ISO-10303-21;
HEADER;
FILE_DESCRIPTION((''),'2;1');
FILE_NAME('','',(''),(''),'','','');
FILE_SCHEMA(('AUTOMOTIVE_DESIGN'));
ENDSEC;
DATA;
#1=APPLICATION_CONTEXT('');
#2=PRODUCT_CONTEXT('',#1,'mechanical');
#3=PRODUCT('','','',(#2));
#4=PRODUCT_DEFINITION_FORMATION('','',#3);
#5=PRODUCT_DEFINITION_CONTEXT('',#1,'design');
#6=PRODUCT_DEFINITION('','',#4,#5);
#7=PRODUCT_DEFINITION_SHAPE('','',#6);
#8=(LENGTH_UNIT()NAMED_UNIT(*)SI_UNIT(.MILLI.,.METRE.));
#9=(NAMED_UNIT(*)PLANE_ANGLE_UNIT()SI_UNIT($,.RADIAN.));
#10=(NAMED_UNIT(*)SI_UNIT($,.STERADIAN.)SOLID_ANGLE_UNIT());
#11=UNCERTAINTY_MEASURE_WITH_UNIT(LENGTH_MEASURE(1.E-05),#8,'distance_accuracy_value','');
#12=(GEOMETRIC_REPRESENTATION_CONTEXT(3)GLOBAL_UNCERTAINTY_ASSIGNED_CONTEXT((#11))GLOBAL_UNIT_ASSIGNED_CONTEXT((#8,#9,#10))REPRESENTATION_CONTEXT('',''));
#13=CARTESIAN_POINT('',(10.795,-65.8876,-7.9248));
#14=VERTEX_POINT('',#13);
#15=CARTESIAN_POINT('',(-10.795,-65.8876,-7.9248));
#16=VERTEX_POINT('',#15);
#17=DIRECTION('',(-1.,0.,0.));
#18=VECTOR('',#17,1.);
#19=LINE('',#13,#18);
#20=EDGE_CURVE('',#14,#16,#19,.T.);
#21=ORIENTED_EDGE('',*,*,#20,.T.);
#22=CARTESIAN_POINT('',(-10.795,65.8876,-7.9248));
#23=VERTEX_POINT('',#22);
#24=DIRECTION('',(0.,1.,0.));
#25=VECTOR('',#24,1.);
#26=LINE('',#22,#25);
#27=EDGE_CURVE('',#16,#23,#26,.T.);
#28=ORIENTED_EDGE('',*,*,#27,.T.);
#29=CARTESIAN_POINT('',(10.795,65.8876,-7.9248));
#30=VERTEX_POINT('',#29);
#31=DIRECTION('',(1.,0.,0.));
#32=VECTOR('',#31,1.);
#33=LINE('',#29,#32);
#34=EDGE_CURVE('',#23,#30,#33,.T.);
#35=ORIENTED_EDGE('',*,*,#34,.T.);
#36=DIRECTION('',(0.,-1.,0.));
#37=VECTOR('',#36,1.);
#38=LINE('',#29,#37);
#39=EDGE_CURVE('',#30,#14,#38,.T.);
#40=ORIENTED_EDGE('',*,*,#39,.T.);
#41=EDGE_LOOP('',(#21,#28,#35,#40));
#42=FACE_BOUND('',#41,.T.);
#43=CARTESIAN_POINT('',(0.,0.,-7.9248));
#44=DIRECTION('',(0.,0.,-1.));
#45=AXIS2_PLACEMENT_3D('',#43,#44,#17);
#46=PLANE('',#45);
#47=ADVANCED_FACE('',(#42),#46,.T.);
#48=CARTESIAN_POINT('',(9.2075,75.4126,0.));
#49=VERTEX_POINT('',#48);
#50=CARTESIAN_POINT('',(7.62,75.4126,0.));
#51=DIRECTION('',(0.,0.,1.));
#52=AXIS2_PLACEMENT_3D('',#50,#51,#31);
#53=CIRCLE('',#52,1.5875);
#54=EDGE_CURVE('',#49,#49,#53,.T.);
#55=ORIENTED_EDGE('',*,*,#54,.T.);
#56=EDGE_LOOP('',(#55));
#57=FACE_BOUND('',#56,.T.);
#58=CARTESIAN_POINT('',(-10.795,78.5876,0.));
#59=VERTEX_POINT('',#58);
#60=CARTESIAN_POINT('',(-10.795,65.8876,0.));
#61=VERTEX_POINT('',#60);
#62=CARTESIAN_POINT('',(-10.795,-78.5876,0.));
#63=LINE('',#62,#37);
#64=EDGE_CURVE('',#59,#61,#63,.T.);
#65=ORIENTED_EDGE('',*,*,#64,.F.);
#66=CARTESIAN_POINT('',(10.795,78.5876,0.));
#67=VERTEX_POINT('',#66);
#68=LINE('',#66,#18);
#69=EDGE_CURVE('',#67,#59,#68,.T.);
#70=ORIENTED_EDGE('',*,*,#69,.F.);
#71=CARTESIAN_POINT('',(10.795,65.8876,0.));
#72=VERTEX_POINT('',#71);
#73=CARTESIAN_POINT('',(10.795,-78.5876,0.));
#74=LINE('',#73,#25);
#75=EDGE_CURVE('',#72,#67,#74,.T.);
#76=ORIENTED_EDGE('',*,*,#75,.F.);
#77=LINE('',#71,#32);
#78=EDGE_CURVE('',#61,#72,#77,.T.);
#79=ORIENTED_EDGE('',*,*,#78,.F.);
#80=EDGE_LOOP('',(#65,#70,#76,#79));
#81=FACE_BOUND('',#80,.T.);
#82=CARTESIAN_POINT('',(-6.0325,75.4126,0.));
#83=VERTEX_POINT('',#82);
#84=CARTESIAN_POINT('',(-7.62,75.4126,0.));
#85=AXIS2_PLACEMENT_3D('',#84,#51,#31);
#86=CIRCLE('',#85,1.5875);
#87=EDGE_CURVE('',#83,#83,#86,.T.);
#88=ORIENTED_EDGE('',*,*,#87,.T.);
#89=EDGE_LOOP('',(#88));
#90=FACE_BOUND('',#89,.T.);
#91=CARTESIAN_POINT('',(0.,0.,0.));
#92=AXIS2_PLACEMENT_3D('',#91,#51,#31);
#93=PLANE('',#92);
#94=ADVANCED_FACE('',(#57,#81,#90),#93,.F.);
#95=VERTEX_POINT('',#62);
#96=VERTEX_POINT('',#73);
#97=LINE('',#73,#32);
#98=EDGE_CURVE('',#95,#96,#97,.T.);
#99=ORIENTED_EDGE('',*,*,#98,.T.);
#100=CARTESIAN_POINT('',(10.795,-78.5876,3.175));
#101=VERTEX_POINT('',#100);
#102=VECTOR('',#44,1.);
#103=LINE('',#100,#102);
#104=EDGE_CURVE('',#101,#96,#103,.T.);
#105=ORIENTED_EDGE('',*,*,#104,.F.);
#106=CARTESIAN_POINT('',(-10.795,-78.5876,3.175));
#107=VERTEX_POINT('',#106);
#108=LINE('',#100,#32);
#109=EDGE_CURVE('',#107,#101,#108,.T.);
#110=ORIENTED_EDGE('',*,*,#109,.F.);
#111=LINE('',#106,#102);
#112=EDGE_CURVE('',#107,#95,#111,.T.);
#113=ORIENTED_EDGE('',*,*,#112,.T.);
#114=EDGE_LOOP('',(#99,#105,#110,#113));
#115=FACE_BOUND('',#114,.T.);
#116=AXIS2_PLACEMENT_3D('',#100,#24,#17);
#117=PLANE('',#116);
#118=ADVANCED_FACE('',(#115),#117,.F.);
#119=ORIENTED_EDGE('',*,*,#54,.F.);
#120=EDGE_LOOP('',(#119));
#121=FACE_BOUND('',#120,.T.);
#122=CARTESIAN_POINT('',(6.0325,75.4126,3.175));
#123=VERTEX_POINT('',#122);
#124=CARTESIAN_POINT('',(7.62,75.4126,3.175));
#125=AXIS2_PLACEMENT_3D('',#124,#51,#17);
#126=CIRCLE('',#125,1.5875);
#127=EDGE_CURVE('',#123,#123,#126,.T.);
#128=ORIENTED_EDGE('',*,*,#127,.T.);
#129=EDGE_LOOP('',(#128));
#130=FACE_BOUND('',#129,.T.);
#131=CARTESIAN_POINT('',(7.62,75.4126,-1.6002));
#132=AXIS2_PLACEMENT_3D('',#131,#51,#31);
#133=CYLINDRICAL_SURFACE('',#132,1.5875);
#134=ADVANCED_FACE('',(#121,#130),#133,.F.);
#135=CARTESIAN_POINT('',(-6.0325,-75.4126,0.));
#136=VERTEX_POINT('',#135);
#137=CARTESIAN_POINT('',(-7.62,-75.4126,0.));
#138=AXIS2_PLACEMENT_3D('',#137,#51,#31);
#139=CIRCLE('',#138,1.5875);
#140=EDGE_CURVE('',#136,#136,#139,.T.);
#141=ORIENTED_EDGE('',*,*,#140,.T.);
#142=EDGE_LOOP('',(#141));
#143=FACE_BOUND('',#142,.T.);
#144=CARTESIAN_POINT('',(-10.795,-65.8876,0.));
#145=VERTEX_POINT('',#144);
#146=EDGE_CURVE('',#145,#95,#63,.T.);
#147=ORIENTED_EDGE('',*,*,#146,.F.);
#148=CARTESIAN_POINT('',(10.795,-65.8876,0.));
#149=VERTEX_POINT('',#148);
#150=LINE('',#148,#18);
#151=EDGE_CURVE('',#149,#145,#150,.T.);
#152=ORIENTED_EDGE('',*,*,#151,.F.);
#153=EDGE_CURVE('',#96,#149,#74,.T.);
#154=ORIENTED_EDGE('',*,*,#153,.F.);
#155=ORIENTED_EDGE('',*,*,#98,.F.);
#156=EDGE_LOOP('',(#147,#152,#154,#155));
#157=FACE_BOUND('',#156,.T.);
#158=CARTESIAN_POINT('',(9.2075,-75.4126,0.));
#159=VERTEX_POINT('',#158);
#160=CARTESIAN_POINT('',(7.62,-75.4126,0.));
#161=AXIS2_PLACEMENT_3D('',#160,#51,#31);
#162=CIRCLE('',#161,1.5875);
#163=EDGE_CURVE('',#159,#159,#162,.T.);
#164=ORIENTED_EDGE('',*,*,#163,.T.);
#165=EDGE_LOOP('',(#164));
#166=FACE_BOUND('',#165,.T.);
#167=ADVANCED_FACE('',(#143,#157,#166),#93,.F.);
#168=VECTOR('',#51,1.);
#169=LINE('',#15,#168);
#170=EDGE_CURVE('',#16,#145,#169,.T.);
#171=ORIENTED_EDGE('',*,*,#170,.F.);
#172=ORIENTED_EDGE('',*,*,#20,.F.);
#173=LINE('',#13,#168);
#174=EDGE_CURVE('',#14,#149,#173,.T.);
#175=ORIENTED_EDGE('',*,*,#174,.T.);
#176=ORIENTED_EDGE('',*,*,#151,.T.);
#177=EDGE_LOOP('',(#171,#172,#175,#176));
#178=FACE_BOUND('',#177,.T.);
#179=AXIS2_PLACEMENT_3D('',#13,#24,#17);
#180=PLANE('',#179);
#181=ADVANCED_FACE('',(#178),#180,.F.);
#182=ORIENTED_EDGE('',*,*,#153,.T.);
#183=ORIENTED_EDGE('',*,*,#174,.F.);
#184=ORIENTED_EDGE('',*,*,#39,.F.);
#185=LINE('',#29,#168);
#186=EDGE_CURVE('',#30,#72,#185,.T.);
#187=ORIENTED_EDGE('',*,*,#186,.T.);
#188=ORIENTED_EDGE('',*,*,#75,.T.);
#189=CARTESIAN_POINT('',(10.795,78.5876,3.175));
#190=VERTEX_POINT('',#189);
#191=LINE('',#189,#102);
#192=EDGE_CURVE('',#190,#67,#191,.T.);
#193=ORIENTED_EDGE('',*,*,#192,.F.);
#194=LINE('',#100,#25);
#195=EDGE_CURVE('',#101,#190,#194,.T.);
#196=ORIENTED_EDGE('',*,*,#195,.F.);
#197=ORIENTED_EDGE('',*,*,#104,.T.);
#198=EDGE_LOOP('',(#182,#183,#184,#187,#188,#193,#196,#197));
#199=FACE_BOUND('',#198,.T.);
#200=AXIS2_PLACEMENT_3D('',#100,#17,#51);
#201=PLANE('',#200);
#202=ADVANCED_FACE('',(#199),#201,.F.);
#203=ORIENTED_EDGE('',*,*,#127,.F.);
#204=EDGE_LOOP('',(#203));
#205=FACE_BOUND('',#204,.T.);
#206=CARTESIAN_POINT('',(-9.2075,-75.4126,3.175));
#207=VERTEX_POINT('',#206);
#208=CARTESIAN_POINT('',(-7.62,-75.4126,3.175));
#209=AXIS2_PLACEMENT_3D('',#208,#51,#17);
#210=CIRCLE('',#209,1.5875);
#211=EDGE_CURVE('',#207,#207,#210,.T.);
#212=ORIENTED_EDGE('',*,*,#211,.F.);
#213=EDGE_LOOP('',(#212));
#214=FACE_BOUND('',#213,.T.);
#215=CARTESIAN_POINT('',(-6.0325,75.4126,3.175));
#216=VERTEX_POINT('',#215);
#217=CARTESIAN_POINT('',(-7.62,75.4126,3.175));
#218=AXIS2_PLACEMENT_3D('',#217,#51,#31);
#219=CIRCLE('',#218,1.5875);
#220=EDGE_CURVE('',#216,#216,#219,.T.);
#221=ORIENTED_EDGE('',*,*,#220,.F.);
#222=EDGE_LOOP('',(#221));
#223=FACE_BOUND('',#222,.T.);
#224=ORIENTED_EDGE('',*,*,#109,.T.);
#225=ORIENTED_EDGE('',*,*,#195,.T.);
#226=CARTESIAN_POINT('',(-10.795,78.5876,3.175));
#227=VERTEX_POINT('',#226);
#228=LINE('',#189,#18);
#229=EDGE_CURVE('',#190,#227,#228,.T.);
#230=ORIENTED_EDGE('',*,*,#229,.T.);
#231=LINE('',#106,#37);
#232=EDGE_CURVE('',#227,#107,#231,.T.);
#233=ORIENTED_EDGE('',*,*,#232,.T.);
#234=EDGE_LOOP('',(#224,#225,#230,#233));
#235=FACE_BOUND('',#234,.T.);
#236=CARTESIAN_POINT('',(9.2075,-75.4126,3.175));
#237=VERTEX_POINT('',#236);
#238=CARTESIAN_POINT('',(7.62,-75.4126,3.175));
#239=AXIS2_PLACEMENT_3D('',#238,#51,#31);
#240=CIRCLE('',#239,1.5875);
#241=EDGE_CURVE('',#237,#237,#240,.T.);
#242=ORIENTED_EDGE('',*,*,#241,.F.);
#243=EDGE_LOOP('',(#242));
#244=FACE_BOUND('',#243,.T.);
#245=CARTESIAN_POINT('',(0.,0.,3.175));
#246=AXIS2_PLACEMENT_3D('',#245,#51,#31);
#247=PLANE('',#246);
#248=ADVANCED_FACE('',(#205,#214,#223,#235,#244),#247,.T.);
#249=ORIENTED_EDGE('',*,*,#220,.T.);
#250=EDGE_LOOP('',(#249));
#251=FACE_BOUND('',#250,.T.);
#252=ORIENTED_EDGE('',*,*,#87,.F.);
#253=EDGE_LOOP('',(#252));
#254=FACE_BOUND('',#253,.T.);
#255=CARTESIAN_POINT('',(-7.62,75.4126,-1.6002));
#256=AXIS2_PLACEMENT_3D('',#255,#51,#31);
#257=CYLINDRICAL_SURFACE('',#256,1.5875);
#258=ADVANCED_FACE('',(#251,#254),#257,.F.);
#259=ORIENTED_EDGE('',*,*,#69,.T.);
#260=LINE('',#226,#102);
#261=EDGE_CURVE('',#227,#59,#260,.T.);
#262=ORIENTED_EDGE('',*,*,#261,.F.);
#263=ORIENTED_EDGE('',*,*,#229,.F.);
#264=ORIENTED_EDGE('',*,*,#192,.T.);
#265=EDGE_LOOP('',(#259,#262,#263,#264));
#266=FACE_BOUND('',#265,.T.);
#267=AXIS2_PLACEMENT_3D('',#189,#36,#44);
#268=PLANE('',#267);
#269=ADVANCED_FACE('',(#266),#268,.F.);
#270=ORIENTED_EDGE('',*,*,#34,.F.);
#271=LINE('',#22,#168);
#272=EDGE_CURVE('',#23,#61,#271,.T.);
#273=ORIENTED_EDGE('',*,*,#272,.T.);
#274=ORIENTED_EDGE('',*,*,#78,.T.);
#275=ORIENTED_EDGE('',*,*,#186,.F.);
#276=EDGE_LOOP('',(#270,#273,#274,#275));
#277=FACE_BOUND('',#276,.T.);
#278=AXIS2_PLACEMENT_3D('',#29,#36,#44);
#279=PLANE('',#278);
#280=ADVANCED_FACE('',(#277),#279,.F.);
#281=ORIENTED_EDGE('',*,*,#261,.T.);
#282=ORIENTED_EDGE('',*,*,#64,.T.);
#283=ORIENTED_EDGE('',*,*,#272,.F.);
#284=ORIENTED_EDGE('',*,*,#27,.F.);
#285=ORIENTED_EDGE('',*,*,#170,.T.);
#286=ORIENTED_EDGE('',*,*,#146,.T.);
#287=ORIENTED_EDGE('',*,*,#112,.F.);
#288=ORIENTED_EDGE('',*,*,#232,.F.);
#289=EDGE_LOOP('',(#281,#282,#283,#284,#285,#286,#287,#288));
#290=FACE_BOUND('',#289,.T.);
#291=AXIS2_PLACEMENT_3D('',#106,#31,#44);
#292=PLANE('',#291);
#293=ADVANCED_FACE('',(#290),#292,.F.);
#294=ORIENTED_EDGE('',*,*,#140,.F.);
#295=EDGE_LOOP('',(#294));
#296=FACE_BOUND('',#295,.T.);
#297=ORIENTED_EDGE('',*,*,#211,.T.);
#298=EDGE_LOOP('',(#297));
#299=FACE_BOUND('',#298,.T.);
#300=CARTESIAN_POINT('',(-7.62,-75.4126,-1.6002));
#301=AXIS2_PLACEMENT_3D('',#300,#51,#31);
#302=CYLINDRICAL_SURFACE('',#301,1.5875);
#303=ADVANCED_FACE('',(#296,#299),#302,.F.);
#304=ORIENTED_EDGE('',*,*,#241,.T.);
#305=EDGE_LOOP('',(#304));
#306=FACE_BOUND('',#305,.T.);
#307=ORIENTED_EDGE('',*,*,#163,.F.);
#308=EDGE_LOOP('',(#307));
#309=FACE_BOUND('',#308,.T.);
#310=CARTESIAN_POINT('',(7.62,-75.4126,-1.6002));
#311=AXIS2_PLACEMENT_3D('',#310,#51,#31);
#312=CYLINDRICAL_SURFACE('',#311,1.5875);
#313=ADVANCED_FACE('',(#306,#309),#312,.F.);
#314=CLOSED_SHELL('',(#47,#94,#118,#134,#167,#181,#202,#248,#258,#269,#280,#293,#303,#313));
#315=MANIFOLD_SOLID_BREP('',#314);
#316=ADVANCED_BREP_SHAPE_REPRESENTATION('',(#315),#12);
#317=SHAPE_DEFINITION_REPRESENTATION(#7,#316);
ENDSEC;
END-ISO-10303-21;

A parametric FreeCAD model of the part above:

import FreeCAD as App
import Part
import Sketcher
Q = App.Units.Quantity


def add_polygon(sketch, points):
    """Adds a closed chain of lines whose ends are joined by coincident constraints."""
    first, n = sketch.GeometryCount, len(points)
    for a, b in zip(points, points[1:] + points[:1]):
        sketch.addGeometry(Part.LineSegment(App.Vector(*a, 0), App.Vector(*b, 0)), False)
    for i in range(n):
        sketch.addConstraint(Sketcher.Constraint("Coincident", first + i, 2, first + (i + 1) % n, 1))

doc = App.newDocument("Part")
body = doc.addObject("PartDesign::Body", "Body")

sketch1 = body.newObject("Sketcher::SketchObject", "Sketch")
sketch1.AttachmentSupport = (doc.getObject("XY_Plane"), [""])
sketch1.MapMode = "FlatFace"
add_polygon(sketch1, [(-10.795, 78.5876), (-10.795, -78.5876), (10.795, -78.5876), (10.795, 78.5876)])
sketch1.addConstraint([
    Sketcher.Constraint("Vertical", 0),
    Sketcher.Constraint("Horizontal", 1),
    Sketcher.Constraint("Vertical", 2),
    Sketcher.Constraint("Horizontal", 3),
    Sketcher.Constraint("Symmetric", 0, 2, 2, 2, -1, 1),
    Sketcher.Constraint("DistanceX", 1, 1, 1, 2, Q("0.85 in")),
    Sketcher.Constraint("DistanceY", 0, 2, 0, 1, Q("6.188 in")),
])
pad1 = body.newObject("PartDesign::Pad", "Pad")
pad1.Profile = sketch1
pad1.Length = Q("0.125 in")

sketch2 = body.newObject("Sketcher::SketchObject", "Sketch001")
sketch2.AttachmentSupport = (doc.getObject("XY_Plane"), [""])
sketch2.MapMode = "FlatFace"
add_polygon(sketch2, [(10.795, 65.8876), (10.795, -65.8876), (-10.795, -65.8876), (-10.795, 65.8876)])
sketch2.addConstraint([
    Sketcher.Constraint("Vertical", 0),
    Sketcher.Constraint("Horizontal", 1),
    Sketcher.Constraint("Vertical", 2),
    Sketcher.Constraint("Horizontal", 3),
    Sketcher.Constraint("Symmetric", 0, 2, 2, 2, -1, 1),
    Sketcher.Constraint("DistanceX", 1, 2, 1, 1, Q("0.85 in")),
    Sketcher.Constraint("DistanceY", 0, 2, 0, 1, Q("5.188 in")),
])
pad2 = body.newObject("PartDesign::Pad", "Pad001")
pad2.Profile = sketch2
pad2.Length = Q("0.312 in")
pad2.Reversed = True

sketch3 = body.newObject("Sketcher::SketchObject", "Sketch002")
sketch3.AttachmentSupport = (doc.getObject("XY_Plane"), [""])
sketch3.MapMode = "FlatFace"
sketch3.AttachmentOffset = App.Placement(App.Vector(0, 0, 0.125 * 25.4), App.Rotation())
sketch3.addGeometry([
    Part.Circle(App.Vector(-7.62, 75.4126, 0), App.Vector(0, 0, 1), 1.5875),
    Part.Circle(App.Vector(7.62, 75.4126, 0), App.Vector(0, 0, 1), 1.5875),
    Part.Circle(App.Vector(7.62, -75.4126, 0), App.Vector(0, 0, 1), 1.5875),
    Part.Circle(App.Vector(-7.62, -75.4126, 0), App.Vector(0, 0, 1), 1.5875),
], False)
sketch3.addConstraint([
    Sketcher.Constraint("Equal", 0, 1),
    Sketcher.Constraint("Equal", 1, 2),
    Sketcher.Constraint("Equal", 2, 3),
    Sketcher.Constraint("Symmetric", 0, 3, 2, 3, -1, 1),
    Sketcher.Constraint("Symmetric", 1, 3, 3, 3, -1, 1),
    Sketcher.Constraint("Symmetric", 0, 3, 1, 3, -2),
    Sketcher.Constraint("Diameter", 0, Q("0.125 in")),
    Sketcher.Constraint("DistanceX", 0, 3, -1, 1, Q("0.3 in")),
    Sketcher.Constraint("DistanceY", -1, 1, 0, 3, Q("2.969 in")),
])
pocket1 = body.newObject("PartDesign::Pocket", "Pocket")
pocket1.Profile = sketch3
pocket1.Length = Q("0.188 in")

doc.recompute()
